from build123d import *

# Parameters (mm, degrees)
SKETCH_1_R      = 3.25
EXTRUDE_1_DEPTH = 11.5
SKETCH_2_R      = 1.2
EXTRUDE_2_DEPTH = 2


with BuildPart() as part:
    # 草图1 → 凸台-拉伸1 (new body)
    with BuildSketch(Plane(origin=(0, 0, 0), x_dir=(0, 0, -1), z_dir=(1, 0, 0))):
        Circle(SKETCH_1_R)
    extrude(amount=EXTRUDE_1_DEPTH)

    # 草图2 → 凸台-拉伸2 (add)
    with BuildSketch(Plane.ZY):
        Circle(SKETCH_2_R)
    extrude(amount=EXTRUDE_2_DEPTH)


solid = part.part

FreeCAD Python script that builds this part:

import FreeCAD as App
import Part
import Sketcher

V = App.Vector
Q = App.Units.Quantity

doc = App.newDocument("Part")
body = doc.addObject("PartDesign::Body", "Body")

sketch1 = doc.addObject("Sketcher::SketchObject", "Sketch")
body.addObject(sketch1)
sketch1.AttachmentSupport = (doc.YZ_Plane, [""])
sketch1.MapMode = "FlatFace"
sketch1.addGeometry(Part.Circle(V(0, 0, 0), V(0, 0, 1), 3.2), False)
sketch1.addConstraint(Sketcher.Constraint("Coincident", 0, 3, -1, 1))
sketch1.addConstraint(Sketcher.Constraint("Diameter", 0, Q("6.5 mm")))
pad1 = doc.addObject("PartDesign::Pad", "Pad")
body.addObject(pad1)
pad1.Profile = sketch1
pad1.Length = 11.5

sketch2 = doc.addObject("Sketcher::SketchObject", "Sketch001")
body.addObject(sketch2)
sketch2.AttachmentSupport = (doc.YZ_Plane, [""])
sketch2.MapMode = "FlatFace"
sketch2.addGeometry(Part.Circle(V(0, 0, 0), V(0, 0, 1), 1.2), False)
sketch2.addConstraint(Sketcher.Constraint("Coincident", 0, 3, -1, 1))
sketch2.addConstraint(Sketcher.Constraint("Diameter", 0, Q("2.4 mm")))
pad2 = doc.addObject("PartDesign::Pad", "Pad001")
body.addObject(pad2)
pad2.Profile = sketch2
pad2.Length = 2
pad2.Reversed = True

doc.recompute()
